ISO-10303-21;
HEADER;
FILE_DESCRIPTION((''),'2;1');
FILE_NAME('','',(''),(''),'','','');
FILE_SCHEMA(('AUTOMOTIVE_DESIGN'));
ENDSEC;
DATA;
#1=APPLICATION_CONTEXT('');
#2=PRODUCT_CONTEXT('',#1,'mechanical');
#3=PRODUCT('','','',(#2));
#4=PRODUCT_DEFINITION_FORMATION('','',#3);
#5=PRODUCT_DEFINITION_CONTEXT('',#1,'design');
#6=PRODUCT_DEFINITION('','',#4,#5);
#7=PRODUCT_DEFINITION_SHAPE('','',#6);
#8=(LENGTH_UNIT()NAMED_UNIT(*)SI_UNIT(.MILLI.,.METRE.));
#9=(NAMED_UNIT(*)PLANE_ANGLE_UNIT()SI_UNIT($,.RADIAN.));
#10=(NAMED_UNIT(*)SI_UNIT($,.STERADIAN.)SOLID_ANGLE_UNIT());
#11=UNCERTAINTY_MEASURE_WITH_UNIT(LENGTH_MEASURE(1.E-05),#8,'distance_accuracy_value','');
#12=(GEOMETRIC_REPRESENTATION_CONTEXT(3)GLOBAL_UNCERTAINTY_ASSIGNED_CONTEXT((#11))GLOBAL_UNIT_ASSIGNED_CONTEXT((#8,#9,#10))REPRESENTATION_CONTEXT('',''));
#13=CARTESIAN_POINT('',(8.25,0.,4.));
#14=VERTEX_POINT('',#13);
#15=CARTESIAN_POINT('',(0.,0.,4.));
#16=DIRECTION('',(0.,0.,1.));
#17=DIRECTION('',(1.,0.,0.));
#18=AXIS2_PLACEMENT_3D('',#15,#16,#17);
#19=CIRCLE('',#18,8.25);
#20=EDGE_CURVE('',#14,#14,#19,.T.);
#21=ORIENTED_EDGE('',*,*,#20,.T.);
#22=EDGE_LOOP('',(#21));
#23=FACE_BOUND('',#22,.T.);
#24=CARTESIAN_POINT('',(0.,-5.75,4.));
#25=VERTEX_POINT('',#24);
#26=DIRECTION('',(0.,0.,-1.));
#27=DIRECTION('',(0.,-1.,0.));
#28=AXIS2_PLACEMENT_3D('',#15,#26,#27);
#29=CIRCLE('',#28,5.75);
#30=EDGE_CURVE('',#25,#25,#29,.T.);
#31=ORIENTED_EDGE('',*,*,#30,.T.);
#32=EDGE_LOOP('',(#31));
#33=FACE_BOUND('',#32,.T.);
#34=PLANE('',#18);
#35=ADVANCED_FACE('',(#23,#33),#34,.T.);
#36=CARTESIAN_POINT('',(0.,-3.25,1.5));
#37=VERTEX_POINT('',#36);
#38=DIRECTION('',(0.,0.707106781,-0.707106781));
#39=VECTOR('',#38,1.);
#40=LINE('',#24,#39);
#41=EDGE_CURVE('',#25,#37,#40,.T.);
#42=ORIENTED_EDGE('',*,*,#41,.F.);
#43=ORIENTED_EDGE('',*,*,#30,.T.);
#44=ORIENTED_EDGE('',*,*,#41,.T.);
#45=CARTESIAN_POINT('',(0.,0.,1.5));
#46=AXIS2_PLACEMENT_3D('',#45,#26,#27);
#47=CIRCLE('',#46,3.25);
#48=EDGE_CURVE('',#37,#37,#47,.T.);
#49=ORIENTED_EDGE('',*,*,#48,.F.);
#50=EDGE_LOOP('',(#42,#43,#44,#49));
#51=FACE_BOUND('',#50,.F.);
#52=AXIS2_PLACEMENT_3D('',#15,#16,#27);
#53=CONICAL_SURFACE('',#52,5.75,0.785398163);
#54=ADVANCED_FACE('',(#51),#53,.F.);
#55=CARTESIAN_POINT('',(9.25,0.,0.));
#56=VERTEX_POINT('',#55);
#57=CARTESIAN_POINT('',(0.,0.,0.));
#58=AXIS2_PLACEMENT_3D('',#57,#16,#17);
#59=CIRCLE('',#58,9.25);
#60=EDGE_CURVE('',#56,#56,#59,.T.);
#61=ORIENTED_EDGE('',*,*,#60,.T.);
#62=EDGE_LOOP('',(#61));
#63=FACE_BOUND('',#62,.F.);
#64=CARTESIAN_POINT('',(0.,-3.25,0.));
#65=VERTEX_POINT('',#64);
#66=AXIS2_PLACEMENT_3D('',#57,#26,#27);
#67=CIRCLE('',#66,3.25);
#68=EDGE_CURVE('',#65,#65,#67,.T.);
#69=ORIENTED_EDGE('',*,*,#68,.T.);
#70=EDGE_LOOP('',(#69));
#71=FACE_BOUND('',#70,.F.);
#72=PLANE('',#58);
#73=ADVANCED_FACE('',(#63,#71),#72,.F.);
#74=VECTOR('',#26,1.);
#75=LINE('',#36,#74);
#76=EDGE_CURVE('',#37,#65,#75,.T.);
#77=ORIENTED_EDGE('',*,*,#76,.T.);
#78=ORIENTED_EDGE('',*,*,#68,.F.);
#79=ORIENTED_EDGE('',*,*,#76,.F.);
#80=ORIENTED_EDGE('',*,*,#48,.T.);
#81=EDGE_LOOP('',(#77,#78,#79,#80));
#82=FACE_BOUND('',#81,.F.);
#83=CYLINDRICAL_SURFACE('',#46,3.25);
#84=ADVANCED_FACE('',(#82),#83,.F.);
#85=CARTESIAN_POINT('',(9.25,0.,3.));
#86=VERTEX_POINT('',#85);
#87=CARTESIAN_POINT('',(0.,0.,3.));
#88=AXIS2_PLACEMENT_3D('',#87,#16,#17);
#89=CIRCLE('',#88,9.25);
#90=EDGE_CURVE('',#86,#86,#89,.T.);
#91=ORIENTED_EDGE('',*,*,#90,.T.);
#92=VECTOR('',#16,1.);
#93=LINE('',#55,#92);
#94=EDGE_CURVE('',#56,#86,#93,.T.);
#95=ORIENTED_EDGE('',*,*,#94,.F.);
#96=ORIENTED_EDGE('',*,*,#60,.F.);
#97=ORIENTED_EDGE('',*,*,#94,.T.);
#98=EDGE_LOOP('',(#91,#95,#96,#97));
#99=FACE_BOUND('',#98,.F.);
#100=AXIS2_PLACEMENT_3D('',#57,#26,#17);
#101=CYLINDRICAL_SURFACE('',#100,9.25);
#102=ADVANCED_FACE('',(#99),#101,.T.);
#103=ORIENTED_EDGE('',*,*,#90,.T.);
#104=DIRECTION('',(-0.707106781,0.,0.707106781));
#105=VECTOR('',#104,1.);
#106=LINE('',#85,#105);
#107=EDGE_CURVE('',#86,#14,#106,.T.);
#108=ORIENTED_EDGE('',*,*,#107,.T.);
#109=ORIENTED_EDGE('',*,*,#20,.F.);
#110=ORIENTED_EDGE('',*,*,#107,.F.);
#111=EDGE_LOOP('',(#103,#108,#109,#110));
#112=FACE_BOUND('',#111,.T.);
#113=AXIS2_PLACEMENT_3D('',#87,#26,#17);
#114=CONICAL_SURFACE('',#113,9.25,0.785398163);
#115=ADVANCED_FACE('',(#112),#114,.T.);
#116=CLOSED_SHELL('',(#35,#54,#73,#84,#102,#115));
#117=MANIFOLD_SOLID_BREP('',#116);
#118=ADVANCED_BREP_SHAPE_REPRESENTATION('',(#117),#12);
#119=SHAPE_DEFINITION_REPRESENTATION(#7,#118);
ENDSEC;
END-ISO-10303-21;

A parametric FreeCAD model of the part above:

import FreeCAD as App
import Part
import Sketcher


def edges_at(feature, points):
    """Names of the edges that pass closest to the given points."""
    edges = feature.Shape.Edges
    near = lambda p: min(range(len(edges)), key=lambda i: edges[i].distToShape(Part.Vertex(*p))[0])
    return sorted({f"Edge{near(p) + 1}" for p in points})

doc = App.newDocument("Part")
body = doc.addObject("PartDesign::Body", "Body")

sketch1 = body.newObject("Sketcher::SketchObject", "Sketch")
sketch1.AttachmentSupport = (doc.getObject("XY_Plane"), [""])
sketch1.MapMode = "FlatFace"
sketch1.addGeometry(Part.Circle(App.Vector(0, 0, 0), App.Vector(0, 0, 1), 9), False)
sketch1.addConstraint([
    Sketcher.Constraint("Coincident", 0, 3, -1, 1),
    Sketcher.Constraint("Diameter", 0, 18.5),
])
pad1 = body.newObject("PartDesign::Pad", "Pad")
pad1.Profile = sketch1
pad1.Length = 4

sketch2 = body.newObject("Sketcher::SketchObject", "Sketch001")
sketch2.AttachmentSupport = (doc.getObject("XY_Plane"), [""])
sketch2.MapMode = "FlatFace"
sketch2.AttachmentOffset = App.Placement(App.Vector(0, 0, 4), App.Rotation())
sketch2.addGeometry(Part.Circle(App.Vector(0, 0, 0), App.Vector(0, 0, 1), 3.2), False)
sketch2.addConstraint([
    Sketcher.Constraint("Coincident", 0, 3, -1, 1),
    Sketcher.Constraint("Diameter", 0, 6.5),
])
doc.recompute()
hole = body.newObject("PartDesign::Hole", "Hole")
hole.Profile = sketch2
hole.ThreadType = "None"
hole.Diameter = 6.5
hole.DepthType = "Dimension"
hole.Depth = 4
hole.DrillPoint = "Angled"
hole.DrillPointAngle = 118
hole.HoleCutType = "Countersink"
hole.HoleCutDiameter = 11.5
hole.HoleCutCountersinkAngle = 90
doc.recompute()

chamfer = body.newObject("PartDesign::Chamfer", "Chamfer")
chamfer.Base = (hole, edges_at(hole, [(-9.25, 0, 4)]))
chamfer.Size = 1

doc.recompute()
